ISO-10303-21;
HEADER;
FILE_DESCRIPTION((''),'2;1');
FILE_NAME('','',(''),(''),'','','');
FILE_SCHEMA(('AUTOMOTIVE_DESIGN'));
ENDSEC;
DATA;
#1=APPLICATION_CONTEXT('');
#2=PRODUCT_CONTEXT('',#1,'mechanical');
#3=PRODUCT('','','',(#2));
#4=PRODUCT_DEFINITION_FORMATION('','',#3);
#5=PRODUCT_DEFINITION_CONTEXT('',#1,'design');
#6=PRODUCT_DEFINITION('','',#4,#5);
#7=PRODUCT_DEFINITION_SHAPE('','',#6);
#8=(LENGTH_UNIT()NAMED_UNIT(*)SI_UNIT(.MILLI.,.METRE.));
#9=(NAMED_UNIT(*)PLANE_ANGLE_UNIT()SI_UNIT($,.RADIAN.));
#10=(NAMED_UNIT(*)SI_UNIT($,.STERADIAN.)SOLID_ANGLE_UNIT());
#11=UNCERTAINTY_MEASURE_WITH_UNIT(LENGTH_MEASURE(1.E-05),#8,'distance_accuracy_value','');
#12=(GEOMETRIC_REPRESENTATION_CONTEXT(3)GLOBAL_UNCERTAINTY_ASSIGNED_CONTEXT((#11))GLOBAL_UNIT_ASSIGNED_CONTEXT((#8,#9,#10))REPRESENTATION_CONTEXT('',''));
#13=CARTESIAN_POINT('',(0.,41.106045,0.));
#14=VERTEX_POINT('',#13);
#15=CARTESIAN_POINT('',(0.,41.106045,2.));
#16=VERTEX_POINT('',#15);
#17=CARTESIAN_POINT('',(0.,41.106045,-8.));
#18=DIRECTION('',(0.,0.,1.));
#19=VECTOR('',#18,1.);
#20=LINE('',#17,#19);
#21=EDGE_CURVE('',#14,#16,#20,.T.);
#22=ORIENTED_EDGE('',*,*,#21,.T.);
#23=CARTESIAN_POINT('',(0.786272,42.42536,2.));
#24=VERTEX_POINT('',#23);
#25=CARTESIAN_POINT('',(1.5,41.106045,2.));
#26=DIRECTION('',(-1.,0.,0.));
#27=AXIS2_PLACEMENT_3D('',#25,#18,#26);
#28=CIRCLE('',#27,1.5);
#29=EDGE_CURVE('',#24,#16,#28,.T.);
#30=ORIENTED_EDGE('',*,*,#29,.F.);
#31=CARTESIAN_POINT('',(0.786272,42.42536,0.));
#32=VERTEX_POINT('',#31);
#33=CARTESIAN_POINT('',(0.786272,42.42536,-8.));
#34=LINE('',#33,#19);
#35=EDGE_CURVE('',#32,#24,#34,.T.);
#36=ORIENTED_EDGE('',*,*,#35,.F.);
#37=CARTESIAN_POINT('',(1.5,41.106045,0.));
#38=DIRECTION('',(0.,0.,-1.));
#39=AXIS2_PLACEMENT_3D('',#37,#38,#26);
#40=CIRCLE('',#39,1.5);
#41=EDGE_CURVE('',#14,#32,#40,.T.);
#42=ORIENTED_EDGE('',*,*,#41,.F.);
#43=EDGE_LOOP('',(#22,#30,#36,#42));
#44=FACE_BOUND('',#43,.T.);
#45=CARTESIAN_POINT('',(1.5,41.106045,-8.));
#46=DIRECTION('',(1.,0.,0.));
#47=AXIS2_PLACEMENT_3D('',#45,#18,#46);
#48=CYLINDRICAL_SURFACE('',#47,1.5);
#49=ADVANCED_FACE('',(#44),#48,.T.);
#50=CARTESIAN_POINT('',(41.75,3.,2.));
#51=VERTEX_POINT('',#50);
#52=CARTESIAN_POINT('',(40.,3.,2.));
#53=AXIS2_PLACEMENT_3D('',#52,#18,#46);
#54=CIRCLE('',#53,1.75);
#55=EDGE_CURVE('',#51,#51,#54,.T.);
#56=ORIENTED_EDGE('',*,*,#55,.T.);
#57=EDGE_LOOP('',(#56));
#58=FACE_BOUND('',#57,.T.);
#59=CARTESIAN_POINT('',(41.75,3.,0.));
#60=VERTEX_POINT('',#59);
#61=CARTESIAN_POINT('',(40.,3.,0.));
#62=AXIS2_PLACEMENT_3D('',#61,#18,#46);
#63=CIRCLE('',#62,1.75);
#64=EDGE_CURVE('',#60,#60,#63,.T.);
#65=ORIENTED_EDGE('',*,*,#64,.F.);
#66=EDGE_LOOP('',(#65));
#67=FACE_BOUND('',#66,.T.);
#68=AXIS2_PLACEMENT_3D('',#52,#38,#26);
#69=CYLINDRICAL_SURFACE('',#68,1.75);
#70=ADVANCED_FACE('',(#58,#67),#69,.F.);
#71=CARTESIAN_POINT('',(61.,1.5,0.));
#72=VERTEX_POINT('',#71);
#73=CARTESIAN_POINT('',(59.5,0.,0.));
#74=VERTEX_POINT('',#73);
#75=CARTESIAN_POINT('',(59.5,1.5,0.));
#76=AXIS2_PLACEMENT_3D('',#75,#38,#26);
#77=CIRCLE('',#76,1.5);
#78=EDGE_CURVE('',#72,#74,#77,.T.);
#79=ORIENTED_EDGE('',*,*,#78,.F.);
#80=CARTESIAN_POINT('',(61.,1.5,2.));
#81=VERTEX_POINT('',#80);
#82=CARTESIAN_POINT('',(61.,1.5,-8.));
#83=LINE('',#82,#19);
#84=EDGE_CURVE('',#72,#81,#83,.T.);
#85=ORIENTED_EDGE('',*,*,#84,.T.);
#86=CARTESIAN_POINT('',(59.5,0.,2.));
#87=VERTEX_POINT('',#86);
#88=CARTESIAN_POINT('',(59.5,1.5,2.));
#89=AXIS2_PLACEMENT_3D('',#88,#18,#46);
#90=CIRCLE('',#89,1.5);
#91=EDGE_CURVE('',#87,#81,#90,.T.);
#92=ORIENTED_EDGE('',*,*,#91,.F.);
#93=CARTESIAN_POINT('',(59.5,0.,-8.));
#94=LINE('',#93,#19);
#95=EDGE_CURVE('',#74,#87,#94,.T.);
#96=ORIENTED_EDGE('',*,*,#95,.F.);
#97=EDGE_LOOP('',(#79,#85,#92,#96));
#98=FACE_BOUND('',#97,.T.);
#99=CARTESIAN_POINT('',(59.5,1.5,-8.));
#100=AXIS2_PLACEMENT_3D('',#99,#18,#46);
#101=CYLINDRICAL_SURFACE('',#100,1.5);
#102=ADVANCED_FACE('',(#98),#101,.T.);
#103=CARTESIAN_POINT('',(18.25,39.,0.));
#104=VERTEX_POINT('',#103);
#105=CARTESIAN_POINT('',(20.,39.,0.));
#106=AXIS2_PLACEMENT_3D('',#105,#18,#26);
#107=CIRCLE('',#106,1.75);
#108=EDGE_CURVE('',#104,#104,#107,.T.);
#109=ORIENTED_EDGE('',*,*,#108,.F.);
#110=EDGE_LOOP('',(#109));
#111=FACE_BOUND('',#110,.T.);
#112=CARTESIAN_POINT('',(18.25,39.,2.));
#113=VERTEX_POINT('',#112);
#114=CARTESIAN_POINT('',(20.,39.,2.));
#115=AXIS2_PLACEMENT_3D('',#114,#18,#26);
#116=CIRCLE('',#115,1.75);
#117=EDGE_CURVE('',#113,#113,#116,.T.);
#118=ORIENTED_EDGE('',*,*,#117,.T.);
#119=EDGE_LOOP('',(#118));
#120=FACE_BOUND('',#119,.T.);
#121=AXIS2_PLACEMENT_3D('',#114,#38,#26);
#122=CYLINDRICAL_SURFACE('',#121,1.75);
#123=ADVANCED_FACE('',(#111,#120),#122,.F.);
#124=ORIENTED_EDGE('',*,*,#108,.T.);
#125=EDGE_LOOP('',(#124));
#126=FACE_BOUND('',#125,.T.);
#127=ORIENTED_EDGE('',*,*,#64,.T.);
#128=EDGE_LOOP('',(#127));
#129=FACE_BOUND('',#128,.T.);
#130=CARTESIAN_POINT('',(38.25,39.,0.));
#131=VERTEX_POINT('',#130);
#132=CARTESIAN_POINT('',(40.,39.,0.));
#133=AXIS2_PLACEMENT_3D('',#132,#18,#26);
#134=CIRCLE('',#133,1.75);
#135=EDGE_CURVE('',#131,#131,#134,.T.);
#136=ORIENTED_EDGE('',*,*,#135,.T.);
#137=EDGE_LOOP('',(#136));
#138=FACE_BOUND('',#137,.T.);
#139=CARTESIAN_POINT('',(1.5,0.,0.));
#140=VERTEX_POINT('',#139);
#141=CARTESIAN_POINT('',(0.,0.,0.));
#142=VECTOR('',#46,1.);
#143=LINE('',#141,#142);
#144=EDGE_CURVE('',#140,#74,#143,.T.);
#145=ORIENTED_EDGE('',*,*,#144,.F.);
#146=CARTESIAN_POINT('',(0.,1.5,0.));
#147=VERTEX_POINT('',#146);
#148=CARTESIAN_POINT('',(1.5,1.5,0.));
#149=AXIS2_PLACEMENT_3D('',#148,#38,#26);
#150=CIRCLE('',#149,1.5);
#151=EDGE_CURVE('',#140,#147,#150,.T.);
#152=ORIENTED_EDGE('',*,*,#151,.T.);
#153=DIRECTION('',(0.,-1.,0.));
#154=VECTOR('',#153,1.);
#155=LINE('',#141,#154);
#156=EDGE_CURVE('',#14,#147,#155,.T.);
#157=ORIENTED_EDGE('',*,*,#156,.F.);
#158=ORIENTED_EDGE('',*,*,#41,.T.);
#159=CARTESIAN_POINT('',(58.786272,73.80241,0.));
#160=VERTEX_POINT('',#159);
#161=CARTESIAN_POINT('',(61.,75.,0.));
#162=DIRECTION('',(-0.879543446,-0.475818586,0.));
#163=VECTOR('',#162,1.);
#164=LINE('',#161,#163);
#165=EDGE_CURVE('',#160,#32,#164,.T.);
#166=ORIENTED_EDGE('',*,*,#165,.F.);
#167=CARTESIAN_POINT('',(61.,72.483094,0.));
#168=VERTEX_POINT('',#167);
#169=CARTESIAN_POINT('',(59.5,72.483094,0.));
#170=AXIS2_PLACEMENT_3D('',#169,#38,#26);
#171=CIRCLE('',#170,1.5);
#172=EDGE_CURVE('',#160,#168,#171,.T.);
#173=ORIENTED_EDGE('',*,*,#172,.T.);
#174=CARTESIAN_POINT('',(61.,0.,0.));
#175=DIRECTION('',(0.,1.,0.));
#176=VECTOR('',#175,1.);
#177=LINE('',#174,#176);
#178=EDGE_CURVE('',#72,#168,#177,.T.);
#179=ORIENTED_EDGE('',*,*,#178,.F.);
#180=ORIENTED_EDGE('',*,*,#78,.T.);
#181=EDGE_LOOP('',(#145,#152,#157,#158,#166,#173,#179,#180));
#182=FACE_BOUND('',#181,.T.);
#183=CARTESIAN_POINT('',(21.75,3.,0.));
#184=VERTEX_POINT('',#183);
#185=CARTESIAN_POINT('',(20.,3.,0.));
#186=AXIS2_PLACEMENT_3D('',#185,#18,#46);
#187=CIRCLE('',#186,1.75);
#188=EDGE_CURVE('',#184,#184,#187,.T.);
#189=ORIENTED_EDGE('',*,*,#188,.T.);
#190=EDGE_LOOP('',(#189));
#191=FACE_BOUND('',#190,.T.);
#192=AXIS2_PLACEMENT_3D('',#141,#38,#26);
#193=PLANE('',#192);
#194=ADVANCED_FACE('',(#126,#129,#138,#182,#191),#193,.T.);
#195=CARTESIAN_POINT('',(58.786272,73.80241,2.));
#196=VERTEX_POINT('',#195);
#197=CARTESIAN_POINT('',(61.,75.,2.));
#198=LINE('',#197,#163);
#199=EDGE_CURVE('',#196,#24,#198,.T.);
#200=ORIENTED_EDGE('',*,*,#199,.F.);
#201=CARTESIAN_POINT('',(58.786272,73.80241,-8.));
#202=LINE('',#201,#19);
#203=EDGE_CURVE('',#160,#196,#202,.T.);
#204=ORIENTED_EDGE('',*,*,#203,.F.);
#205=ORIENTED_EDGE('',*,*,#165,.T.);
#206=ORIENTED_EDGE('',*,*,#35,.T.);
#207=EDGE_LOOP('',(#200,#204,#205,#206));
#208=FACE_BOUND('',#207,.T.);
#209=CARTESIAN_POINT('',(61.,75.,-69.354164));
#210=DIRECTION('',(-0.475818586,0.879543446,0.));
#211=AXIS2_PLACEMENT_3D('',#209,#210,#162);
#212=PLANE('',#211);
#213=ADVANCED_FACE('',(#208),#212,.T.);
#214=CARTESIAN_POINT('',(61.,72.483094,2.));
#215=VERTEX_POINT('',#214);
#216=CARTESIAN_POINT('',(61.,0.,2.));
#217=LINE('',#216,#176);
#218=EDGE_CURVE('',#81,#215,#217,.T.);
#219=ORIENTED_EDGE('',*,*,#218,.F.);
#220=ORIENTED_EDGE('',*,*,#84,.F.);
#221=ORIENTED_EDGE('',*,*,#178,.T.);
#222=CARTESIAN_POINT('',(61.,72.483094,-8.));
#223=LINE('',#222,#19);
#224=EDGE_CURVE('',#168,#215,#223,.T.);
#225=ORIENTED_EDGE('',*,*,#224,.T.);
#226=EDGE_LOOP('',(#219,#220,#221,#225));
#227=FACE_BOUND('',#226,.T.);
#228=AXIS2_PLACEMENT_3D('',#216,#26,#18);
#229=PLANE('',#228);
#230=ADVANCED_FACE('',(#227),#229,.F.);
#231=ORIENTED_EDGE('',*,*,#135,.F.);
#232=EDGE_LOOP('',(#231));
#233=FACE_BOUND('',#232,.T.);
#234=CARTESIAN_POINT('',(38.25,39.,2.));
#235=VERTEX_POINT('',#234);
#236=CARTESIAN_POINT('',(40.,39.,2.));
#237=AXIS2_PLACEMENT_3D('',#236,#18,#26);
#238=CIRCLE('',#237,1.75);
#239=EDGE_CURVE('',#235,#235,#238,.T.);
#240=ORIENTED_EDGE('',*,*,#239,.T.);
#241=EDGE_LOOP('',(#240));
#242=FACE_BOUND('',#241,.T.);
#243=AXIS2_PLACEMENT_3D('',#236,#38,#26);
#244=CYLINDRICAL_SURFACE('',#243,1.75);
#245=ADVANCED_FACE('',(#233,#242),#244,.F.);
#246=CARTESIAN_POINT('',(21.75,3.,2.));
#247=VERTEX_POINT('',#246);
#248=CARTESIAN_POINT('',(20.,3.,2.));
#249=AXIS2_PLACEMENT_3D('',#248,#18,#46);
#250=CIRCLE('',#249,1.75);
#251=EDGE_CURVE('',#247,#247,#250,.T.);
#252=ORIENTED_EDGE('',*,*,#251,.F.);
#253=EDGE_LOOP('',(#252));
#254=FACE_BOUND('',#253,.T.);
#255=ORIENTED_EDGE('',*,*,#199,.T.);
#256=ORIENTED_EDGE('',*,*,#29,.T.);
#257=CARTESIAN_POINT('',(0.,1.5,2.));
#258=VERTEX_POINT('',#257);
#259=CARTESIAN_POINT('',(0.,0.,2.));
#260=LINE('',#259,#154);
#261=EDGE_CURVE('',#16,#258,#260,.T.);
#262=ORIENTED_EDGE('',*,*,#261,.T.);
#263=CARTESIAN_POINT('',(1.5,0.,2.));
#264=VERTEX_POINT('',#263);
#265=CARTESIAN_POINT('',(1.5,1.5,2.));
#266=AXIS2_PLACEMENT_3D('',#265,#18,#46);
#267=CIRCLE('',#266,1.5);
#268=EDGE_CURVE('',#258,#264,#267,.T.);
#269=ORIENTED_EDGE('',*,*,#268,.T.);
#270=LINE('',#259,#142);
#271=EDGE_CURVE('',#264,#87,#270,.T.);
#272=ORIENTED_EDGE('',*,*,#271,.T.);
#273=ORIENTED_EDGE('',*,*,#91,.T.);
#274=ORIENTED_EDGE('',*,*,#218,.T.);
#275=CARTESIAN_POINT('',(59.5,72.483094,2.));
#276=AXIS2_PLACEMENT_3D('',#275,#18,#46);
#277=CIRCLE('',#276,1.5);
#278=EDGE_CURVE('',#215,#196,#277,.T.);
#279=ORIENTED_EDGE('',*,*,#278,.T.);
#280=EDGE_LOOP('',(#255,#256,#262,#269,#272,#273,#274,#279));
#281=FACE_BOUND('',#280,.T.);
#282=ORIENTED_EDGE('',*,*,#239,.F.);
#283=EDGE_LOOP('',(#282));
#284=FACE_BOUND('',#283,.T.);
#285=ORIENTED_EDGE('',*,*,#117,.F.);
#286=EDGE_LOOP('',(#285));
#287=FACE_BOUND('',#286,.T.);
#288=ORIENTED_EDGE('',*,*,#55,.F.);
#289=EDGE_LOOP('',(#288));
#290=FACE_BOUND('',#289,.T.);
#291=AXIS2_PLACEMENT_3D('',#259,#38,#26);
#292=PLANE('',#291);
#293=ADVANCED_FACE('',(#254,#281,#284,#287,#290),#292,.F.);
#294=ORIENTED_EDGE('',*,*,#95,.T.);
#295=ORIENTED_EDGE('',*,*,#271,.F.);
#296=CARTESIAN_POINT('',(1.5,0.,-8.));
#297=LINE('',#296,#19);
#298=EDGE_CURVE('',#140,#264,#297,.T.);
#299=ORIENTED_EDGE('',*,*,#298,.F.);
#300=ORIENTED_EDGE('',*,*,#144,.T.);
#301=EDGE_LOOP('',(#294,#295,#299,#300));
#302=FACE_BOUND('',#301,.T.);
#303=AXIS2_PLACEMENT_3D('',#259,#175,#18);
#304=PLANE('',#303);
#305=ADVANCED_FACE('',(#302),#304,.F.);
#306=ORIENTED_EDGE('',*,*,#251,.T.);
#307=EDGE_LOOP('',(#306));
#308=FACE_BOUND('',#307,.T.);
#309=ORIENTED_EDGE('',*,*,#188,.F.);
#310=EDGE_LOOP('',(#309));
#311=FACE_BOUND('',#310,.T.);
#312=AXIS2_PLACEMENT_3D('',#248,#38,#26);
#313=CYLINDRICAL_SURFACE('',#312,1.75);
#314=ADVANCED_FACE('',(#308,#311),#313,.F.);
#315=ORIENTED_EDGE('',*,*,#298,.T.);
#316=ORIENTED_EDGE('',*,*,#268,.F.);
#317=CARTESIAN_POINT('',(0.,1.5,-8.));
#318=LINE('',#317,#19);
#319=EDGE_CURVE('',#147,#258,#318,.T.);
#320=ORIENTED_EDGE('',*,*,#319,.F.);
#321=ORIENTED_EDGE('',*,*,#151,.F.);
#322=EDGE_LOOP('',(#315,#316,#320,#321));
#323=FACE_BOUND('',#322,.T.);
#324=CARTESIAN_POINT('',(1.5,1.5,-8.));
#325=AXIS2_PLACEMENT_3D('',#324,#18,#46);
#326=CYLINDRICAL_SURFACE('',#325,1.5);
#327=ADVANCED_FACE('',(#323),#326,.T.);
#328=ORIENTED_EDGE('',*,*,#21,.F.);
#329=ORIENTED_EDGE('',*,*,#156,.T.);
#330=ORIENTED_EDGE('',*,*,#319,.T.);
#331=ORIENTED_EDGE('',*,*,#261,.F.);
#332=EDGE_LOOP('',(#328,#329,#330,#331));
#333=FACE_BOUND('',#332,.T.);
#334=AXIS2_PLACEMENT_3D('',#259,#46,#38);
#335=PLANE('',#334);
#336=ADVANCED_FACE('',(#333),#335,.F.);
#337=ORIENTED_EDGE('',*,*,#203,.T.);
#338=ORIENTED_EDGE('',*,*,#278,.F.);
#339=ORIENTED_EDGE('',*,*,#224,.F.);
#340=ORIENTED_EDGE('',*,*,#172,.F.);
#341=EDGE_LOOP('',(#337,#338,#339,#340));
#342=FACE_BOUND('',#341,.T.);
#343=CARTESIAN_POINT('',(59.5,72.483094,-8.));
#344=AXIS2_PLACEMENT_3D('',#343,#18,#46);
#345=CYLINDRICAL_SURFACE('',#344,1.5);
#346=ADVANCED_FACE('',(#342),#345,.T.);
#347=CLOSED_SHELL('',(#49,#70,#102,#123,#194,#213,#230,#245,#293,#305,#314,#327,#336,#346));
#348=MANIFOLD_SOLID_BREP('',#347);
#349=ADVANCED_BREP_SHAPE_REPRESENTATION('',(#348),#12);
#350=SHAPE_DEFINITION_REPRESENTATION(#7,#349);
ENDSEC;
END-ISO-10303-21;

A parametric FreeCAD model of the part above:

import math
import FreeCAD as App
import Part
import Sketcher
from FreeCAD import Vector
Q = App.Units.Quantity


def add_polygon(sketch, points):
    """Adds a closed chain of lines whose ends are joined by coincident constraints."""
    first, n = sketch.GeometryCount, len(points)
    for a, b in zip(points, points[1:] + points[:1]):
        sketch.addGeometry(Part.LineSegment(App.Vector(*a, 0), App.Vector(*b, 0)), False)
    for i in range(n):
        sketch.addConstraint(Sketcher.Constraint("Coincident", first + i, 2, first + (i + 1) % n, 1))

doc = App.newDocument("Part")
body = doc.addObject("PartDesign::Body", "Body")

# Sketch on XY plane
sketch1 = body.newObject("Sketcher::SketchObject", "Sketch")
sketch1.AttachmentSupport = (doc.getObject("XY_Plane"), [""])
sketch1.MapMode = "FlatFace"
add_polygon(sketch1, [(0, 42), (0, 0), (61, 0), (61, 42)])  # lines 0-3
sketch1.addGeometry(Part.Circle(Vector(20, 3, 0), Vector(0, 0, 1), 1.8), False)  # 4
sketch1.addGeometry(Part.Circle(Vector(40, 3, 0), Vector(0, 0, 1), 1.8), False)  # 5
sketch1.addGeometry(Part.Circle(Vector(20, 39, 0), Vector(0, 0, 1), 1.8), False)  # 6
sketch1.addGeometry(Part.Circle(Vector(40, 39, 0), Vector(0, 0, 1), 1.8), False)  # 7
sketch1.addConstraint([
    Sketcher.Constraint("Vertical", 0),
    Sketcher.Constraint("Horizontal", 1),
    Sketcher.Constraint("Vertical", 2),
    Sketcher.Constraint("Horizontal", 3),
    Sketcher.Constraint("Coincident", 0, 2, -1, 1),
    Sketcher.Constraint("Equal", 4, 5),
    Sketcher.Constraint("Equal", 5, 6),
    Sketcher.Constraint("Equal", 6, 7),
    Sketcher.Constraint("Horizontal", 4, 3, 5, 3),
    Sketcher.Constraint("Horizontal", 6, 3, 7, 3),
    Sketcher.Constraint("Vertical", 4, 3, 6, 3),
    Sketcher.Constraint("Vertical", 5, 3, 7, 3),
    Sketcher.Constraint("Diameter", 4, Q("3.5 mm")),
    Sketcher.Constraint("DistanceX", 1, 1, 1, 2, Q("61 mm")),
    Sketcher.Constraint("DistanceY", 0, 2, 0, 1, Q("42 mm")),
    Sketcher.Constraint("DistanceX", -1, 1, 4, 3, Q("20 mm")),
    Sketcher.Constraint("DistanceY", -1, 1, 4, 3, Q("3 mm")),
    Sketcher.Constraint("DistanceX", -1, 1, 5, 3, Q("40 mm")),
    Sketcher.Constraint("DistanceY", -1, 1, 6, 3, Q("39 mm")),
])
pad1 = body.newObject("PartDesign::Pad", "Pad")
pad1.Profile = sketch1
pad1.Length = 2

# Sketch on XY plane
sketch2 = body.newObject("Sketcher::SketchObject", "Sketch001")
sketch2.AttachmentSupport = (doc.getObject("XY_Plane"), [""])
sketch2.MapMode = "FlatFace"
sketch2.AttachmentOffset = App.Placement(Vector(0, 0, 2), App.Rotation())
add_polygon(sketch2, [(61, 75), (0, 42), (61, 42)])  # lines 0-2
sketch2.addConstraint([
    Sketcher.Constraint("Horizontal", 1),
    Sketcher.Constraint("Vertical", 2),
    Sketcher.Constraint("PointOnObject", 0, 2, -2),
    Sketcher.Constraint("DistanceX", 1, 1, 1, 2, Q("61 mm")),
    Sketcher.Constraint("DistanceY", 2, 1, 2, 2, Q("33 mm")),
    Sketcher.Constraint("DistanceY", -1, 1, 0, 2, Q("42 mm")),
])
pad2 = body.newObject("PartDesign::Pad", "Pad001")
pad2.Profile = sketch2
pad2.Length = 2
pad2.Reversed = True

# Sketch on XY plane
sketch3 = body.newObject("Sketcher::SketchObject", "Sketch002")
sketch3.AttachmentSupport = (doc.getObject("XY_Plane"), [""])
sketch3.MapMode = "FlatFace"
sketch3.AttachmentOffset = App.Placement(Vector(0, 0, 2), App.Rotation())
add_polygon(sketch3, [(-10.7, 85.7), (-10.7, -10.7), (71.7, -10.7), (71.7, 85.7)])  # lines 0-3
sketch3.addGeometry(Part.LineSegment(Vector(0, 1.5, 0), Vector(0, 41.1, 0)), False)  # 4
sketch3.addGeometry(Part.ArcOfCircle(Part.Circle(Vector(1.5, 41.1, 0), Vector(0, 0, 1), 1.5), math.radians(118), math.radians(180)), False)  # 5
sketch3.addGeometry(Part.LineSegment(Vector(0.8, 42.4, 0), Vector(58.8, 73.8, 0)), False)  # 6
sketch3.addGeometry(Part.ArcOfCircle(Part.Circle(Vector(59.5, 72.5, 0), Vector(0, 0, 1), 1.5), math.radians(0), math.radians(118)), False)  # 7
sketch3.addGeometry(Part.LineSegment(Vector(61, 72.5, 0), Vector(61, 1.5, 0)), False)  # 8
sketch3.addGeometry(Part.ArcOfCircle(Part.Circle(Vector(59.5, 1.5, 0), Vector(0, 0, 1), 1.5), math.radians(-90), math.radians(0)), False)  # 9
sketch3.addGeometry(Part.LineSegment(Vector(59.5, 0, 0), Vector(1.5, 0, 0)), False)  # 10
sketch3.addGeometry(Part.ArcOfCircle(Part.Circle(Vector(1.5, 1.5, 0), Vector(0, 0, 1), 1.5), math.radians(180), math.radians(270)), False)  # 11
sketch3.addConstraint([
    Sketcher.Constraint("Tangent", 4, 2, 5, 2),
    Sketcher.Constraint("Tangent", 5, 1, 6, 1),
    Sketcher.Constraint("Tangent", 6, 2, 7, 2),
    Sketcher.Constraint("Tangent", 7, 1, 8, 1),
    Sketcher.Constraint("Tangent", 8, 2, 9, 2),
    Sketcher.Constraint("Tangent", 9, 1, 10, 1),
    Sketcher.Constraint("Tangent", 10, 2, 11, 2),
    Sketcher.Constraint("Tangent", 11, 1, 4, 1),
    Sketcher.Constraint("Vertical", 0),
    Sketcher.Constraint("Horizontal", 1),
    Sketcher.Constraint("Vertical", 2),
    Sketcher.Constraint("Horizontal", 3),
    Sketcher.Constraint("Vertical", 4),
    Sketcher.Constraint("Vertical", 8),
    Sketcher.Constraint("Horizontal", 10),
    Sketcher.Constraint("Equal", 5, 7),
    Sketcher.Constraint("Equal", 7, 9),
    Sketcher.Constraint("Equal", 9, 11),
    Sketcher.Constraint("PointOnObject", 4, 2, -2),
    Sketcher.Constraint("PointOnObject", 9, 1, -1),
    Sketcher.Constraint("Radius", 5, Q("1.5 mm")),
    Sketcher.Constraint("DistanceX", 10, 2, 10, 1, Q("58 mm")),
    Sketcher.Constraint("DistanceX", 1, 1, 1, 2, Q("82.34 mm")),
    Sketcher.Constraint("DistanceY", 0, 2, 0, 1, Q("96.34 mm")),
    Sketcher.Constraint("DistanceX", 0, 2, -1, 1, Q("10.67 mm")),
    Sketcher.Constraint("DistanceY", 0, 2, -1, 1, Q("10.67 mm")),
    Sketcher.Constraint("DistanceY", 4, 1, 4, 2, Q("39.606045 mm")),
    Sketcher.Constraint("DistanceY", 8, 2, 8, 1, Q("70.983094 mm")),
])
pocket1 = body.newObject("PartDesign::Pocket", "Pocket")
pocket1.Profile = sketch3
pocket1.Length = 10

doc.recompute()
